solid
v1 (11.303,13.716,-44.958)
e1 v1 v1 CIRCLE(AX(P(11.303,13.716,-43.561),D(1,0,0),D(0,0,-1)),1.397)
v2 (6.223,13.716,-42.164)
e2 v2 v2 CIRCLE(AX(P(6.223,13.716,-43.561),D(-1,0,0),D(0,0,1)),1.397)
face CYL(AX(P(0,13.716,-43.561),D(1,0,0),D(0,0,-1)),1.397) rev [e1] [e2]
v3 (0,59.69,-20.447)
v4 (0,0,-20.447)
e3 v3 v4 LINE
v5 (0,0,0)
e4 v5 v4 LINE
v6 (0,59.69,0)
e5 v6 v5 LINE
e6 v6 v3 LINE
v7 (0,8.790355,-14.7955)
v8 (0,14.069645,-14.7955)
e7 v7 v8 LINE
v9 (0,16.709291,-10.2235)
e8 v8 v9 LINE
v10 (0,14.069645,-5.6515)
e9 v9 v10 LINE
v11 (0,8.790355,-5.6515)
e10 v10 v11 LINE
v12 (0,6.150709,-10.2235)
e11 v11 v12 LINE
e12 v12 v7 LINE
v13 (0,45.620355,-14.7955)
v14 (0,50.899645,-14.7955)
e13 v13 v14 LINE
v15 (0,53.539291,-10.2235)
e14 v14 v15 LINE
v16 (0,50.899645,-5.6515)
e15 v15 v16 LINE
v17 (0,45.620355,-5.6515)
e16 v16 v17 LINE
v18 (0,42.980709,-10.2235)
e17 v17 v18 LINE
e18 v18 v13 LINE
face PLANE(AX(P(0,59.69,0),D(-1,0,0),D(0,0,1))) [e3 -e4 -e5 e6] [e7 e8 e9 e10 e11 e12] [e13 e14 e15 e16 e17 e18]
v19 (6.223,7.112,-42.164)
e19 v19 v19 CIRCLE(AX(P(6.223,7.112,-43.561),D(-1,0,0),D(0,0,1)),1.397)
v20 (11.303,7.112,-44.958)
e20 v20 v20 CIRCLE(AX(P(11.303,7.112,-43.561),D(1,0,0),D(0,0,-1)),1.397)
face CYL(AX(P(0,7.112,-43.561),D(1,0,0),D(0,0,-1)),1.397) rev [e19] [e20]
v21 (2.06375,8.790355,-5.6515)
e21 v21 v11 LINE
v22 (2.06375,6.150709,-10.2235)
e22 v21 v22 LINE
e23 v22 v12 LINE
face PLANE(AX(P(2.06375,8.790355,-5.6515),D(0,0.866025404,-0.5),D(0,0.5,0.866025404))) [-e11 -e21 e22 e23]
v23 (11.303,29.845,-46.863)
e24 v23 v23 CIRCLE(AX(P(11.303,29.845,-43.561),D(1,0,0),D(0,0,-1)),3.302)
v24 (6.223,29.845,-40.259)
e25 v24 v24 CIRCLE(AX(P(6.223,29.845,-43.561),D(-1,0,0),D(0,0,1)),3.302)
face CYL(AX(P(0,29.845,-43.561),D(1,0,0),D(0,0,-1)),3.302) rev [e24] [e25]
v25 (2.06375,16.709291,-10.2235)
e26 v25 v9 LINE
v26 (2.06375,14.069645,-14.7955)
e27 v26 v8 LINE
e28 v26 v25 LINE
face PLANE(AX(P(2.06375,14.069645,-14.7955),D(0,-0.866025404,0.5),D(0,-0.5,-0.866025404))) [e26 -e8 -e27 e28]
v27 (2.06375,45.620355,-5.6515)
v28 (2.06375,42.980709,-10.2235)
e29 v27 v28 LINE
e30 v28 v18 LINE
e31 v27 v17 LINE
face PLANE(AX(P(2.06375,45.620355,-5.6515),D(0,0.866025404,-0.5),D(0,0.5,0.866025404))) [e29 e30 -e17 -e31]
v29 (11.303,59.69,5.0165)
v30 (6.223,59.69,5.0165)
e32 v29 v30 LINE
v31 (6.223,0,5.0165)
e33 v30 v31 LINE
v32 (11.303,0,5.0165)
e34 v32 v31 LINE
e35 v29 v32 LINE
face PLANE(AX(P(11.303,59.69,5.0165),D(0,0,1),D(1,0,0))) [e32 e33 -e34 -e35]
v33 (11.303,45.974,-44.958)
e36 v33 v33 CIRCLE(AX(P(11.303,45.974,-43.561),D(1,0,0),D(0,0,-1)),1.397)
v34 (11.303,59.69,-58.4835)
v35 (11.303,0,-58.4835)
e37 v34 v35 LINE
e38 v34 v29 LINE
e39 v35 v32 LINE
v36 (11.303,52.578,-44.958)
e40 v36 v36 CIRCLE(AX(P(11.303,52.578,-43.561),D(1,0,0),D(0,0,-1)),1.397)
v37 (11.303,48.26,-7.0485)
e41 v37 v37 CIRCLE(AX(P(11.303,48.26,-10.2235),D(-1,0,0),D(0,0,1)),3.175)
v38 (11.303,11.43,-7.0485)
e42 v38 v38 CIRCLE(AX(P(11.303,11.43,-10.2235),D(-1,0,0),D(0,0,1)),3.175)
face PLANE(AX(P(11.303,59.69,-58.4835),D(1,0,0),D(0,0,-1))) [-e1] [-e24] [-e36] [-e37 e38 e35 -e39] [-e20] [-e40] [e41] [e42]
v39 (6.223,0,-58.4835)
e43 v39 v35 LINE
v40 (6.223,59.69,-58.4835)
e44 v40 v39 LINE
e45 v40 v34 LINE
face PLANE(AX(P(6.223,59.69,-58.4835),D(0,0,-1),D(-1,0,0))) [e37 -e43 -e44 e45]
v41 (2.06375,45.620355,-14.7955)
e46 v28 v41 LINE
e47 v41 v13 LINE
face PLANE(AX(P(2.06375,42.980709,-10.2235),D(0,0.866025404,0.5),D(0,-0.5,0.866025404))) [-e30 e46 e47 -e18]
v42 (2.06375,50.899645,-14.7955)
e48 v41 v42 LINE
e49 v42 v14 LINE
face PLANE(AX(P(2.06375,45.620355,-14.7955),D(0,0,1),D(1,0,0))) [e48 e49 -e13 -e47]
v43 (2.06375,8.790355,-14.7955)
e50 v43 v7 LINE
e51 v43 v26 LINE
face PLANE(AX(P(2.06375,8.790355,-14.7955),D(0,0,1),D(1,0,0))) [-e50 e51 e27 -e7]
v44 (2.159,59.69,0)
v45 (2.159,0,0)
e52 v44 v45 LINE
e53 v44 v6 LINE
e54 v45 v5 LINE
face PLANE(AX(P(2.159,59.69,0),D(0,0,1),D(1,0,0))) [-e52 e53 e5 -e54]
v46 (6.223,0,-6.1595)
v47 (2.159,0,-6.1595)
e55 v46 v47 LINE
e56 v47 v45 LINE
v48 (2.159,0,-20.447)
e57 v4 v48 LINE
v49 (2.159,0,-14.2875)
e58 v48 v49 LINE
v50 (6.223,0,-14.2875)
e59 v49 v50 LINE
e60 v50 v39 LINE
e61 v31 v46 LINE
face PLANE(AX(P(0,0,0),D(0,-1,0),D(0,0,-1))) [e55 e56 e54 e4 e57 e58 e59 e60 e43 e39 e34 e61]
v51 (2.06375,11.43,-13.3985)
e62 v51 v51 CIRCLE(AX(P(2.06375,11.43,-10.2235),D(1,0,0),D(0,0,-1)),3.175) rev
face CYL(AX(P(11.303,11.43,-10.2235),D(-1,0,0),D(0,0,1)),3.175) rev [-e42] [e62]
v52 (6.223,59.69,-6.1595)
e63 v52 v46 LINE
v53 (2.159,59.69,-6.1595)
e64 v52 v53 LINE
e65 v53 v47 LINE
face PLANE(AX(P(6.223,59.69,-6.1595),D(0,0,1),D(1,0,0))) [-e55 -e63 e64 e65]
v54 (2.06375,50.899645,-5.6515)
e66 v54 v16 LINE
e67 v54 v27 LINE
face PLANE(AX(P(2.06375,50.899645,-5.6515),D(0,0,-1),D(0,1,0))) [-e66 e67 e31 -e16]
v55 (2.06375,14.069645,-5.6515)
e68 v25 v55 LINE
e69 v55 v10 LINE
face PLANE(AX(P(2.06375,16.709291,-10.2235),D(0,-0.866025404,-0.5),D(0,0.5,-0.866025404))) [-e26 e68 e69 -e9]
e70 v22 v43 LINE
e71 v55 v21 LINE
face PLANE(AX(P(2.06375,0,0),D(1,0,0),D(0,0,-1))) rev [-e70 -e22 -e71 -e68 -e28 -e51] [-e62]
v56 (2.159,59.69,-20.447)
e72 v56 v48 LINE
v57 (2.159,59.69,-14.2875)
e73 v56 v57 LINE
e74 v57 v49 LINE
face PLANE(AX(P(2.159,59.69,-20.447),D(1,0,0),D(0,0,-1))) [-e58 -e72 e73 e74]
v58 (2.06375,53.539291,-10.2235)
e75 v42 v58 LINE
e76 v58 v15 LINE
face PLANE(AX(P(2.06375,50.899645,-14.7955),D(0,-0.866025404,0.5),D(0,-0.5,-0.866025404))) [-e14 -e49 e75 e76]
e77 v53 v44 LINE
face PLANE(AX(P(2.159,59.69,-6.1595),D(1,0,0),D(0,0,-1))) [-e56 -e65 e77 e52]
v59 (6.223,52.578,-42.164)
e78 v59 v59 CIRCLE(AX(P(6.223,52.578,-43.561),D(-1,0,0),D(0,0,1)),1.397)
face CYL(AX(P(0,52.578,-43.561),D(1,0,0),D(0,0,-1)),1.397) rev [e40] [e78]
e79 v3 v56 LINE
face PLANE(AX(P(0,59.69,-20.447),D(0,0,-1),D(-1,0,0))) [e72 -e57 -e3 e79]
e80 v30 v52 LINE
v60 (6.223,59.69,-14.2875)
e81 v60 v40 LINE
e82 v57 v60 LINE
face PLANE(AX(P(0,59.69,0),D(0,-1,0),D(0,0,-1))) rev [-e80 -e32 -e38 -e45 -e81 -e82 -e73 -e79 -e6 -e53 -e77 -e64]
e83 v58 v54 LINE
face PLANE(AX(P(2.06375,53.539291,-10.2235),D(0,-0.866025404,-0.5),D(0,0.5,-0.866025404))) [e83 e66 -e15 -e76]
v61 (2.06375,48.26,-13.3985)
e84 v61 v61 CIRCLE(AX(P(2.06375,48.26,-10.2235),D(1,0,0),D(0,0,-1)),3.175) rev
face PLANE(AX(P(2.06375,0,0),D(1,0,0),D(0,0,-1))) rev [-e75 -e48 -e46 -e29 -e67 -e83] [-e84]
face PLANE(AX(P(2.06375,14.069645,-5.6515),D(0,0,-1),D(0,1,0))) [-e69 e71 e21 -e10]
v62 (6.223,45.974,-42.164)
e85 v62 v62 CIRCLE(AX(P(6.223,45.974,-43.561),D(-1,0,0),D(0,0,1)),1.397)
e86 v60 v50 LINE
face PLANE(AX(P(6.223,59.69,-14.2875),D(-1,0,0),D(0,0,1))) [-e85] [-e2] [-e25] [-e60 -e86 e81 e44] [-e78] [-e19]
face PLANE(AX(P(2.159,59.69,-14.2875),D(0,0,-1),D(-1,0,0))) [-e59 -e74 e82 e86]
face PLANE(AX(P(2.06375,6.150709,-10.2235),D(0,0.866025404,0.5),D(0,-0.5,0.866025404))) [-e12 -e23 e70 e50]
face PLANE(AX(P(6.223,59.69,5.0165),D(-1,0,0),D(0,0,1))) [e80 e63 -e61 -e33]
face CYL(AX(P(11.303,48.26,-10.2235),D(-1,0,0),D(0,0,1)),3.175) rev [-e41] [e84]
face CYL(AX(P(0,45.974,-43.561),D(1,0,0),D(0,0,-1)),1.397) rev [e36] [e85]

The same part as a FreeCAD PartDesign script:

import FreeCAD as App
import Part
import Sketcher
from FreeCAD import Vector
Q = App.Units.Quantity

doc = App.newDocument("Part")
body = doc.addObject("PartDesign::Body", "Body")

# Sketch on XZ plane
sketch1 = doc.addObject("Sketcher::SketchObject", "Sketch")
body.addObject(sketch1)
sketch1.AttachmentSupport = (doc.XZ_Plane, [""])
sketch1.MapMode = "FlatFace"
sketch1.addGeometry(Part.LineSegment(Vector(0, -20.4, 0), Vector(0, 0, 0)), False)
sketch1.addGeometry(Part.LineSegment(Vector(0, 0, 0), Vector(2.2, 0, 0)), False)
sketch1.addGeometry(Part.LineSegment(Vector(2.2, 0, 0), Vector(2.2, -6.2, 0)), False)
sketch1.addGeometry(Part.LineSegment(Vector(2.2, -6.2, 0), Vector(6.2, -6.2, 0)), False)
sketch1.addGeometry(Part.LineSegment(Vector(6.2, -6.2, 0), Vector(6.2, 5, 0)), False)
sketch1.addGeometry(Part.LineSegment(Vector(6.2, 5, 0), Vector(11.3, 5, 0)), False)
sketch1.addGeometry(Part.LineSegment(Vector(11.3, 5, 0), Vector(11.3, -58.5, 0)), False)
sketch1.addGeometry(Part.LineSegment(Vector(11.3, -58.5, 0), Vector(6.2, -58.5, 0)), False)
sketch1.addGeometry(Part.LineSegment(Vector(6.2, -58.5, 0), Vector(6.2, -14.3, 0)), False)
sketch1.addGeometry(Part.LineSegment(Vector(6.2, -14.3, 0), Vector(2.2, -14.3, 0)), False)
sketch1.addGeometry(Part.LineSegment(Vector(2.2, -14.3, 0), Vector(2.2, -20.4, 0)), False)
sketch1.addGeometry(Part.LineSegment(Vector(2.2, -20.4, 0), Vector(0, -20.4, 0)), False)
sketch1.addConstraint(Sketcher.Constraint("Coincident", 0, 2, 1, 1))
sketch1.addConstraint(Sketcher.Constraint("Coincident", 1, 2, 2, 1))
sketch1.addConstraint(Sketcher.Constraint("Coincident", 2, 2, 3, 1))
sketch1.addConstraint(Sketcher.Constraint("Coincident", 3, 2, 4, 1))
sketch1.addConstraint(Sketcher.Constraint("Coincident", 4, 2, 5, 1))
sketch1.addConstraint(Sketcher.Constraint("Coincident", 5, 2, 6, 1))
sketch1.addConstraint(Sketcher.Constraint("Coincident", 6, 2, 7, 1))
sketch1.addConstraint(Sketcher.Constraint("Coincident", 7, 2, 8, 1))
sketch1.addConstraint(Sketcher.Constraint("Coincident", 8, 2, 9, 1))
sketch1.addConstraint(Sketcher.Constraint("Coincident", 9, 2, 10, 1))
sketch1.addConstraint(Sketcher.Constraint("Coincident", 10, 2, 11, 1))
sketch1.addConstraint(Sketcher.Constraint("Coincident", 11, 2, 0, 1))
sketch1.addConstraint(Sketcher.Constraint("Vertical", 0))
sketch1.addConstraint(Sketcher.Constraint("Horizontal", 1))
sketch1.addConstraint(Sketcher.Constraint("Vertical", 2))
sketch1.addConstraint(Sketcher.Constraint("Horizontal", 3))
sketch1.addConstraint(Sketcher.Constraint("Vertical", 4))
sketch1.addConstraint(Sketcher.Constraint("Horizontal", 5))
sketch1.addConstraint(Sketcher.Constraint("Vertical", 6))
sketch1.addConstraint(Sketcher.Constraint("Horizontal", 7))
sketch1.addConstraint(Sketcher.Constraint("Vertical", 8))
sketch1.addConstraint(Sketcher.Constraint("Horizontal", 9))
sketch1.addConstraint(Sketcher.Constraint("Vertical", 10))
sketch1.addConstraint(Sketcher.Constraint("Horizontal", 11))
sketch1.addConstraint(Sketcher.Constraint("Coincident", 0, 2, -1, 1))
sketch1.addConstraint(Sketcher.Constraint("Vertical", 4, 2, 7, 2))
sketch1.addConstraint(Sketcher.Constraint("Vertical", 2, 2, 9, 2))
sketch1.addConstraint(Sketcher.Constraint("Equal", 2, 10))
sketch1.addConstraint(Sketcher.Constraint("DistanceX", 5, 1, 5, 2, Q("0.2 in")))
sketch1.addConstraint(Sketcher.Constraint("DistanceY", 6, 2, 6, 1, Q("2.5 in")))
sketch1.addConstraint(Sketcher.Constraint("DistanceX", 3, 1, 3, 2, Q("0.16 in")))
sketch1.addConstraint(Sketcher.Constraint("DistanceY", 4, 1, 4, 2, Q("0.44 in")))
sketch1.addConstraint(Sketcher.Constraint("DistanceY", 8, 1, 8, 2, Q("1.74 in")))
sketch1.addConstraint(Sketcher.Constraint("DistanceX", 1, 1, 1, 2, Q("0.085 in")))
sketch1.addConstraint(Sketcher.Constraint("DistanceY", 0, 1, 0, 2, Q("0.805 in")))
pad1 = doc.addObject("PartDesign::Pad", "Pad")
body.addObject(pad1)
pad1.Profile = sketch1
pad1.Length = Q("2.35 in")
pad1.Reversed = True

# Sketch on YZ plane
sketch2 = doc.addObject("Sketcher::SketchObject", "Sketch001")
body.addObject(sketch2)
sketch2.AttachmentSupport = (doc.YZ_Plane, [""])
sketch2.MapMode = "FlatFace"
sketch2.AttachmentOffset = App.Placement(Vector(0, 0, 0.445 * 25.4), App.Rotation())
sketch2.addGeometry(Part.Circle(Vector(29.8, -43.6, 0), Vector(0, 0, 1), 3.3), False)
sketch2.addGeometry(Part.Circle(Vector(13.7, -43.6, 0), Vector(0, 0, 1), 1.4), False)
sketch2.addGeometry(Part.Circle(Vector(7.1, -43.6, 0), Vector(0, 0, 1), 1.4), False)
sketch2.addGeometry(Part.Circle(Vector(46, -43.6, 0), Vector(0, 0, 1), 1.4), False)
sketch2.addGeometry(Part.Circle(Vector(52.6, -43.6, 0), Vector(0, 0, 1), 1.4), False)
sketch2.addConstraint(Sketcher.Constraint("Equal", 1, 2))
sketch2.addConstraint(Sketcher.Constraint("Equal", 2, 3))
sketch2.addConstraint(Sketcher.Constraint("Equal", 3, 4))
sketch2.addConstraint(Sketcher.Constraint("Horizontal", 0, 3, 1, 3))
sketch2.addConstraint(Sketcher.Constraint("Horizontal", 1, 3, 2, 3))
sketch2.addConstraint(Sketcher.Constraint("Horizontal", 2, 3, 3, 3))
sketch2.addConstraint(Sketcher.Constraint("Horizontal", 3, 3, 4, 3))
sketch2.addConstraint(Sketcher.Constraint("Diameter", 0, Q("0.26 in")))
sketch2.addConstraint(Sketcher.Constraint("Diameter", 1, Q("0.11 in")))
sketch2.addConstraint(Sketcher.Constraint("DistanceX", -1, 1, 1, 3, Q("0.54 in")))
sketch2.addConstraint(Sketcher.Constraint("DistanceX", -1, 1, 2, 3, Q("0.28 in")))
sketch2.addConstraint(Sketcher.Constraint("DistanceX", -1, 1, 3, 3, Q("1.81 in")))
sketch2.addConstraint(Sketcher.Constraint("DistanceX", -1, 1, 4, 3, Q("2.07 in")))
sketch2.addConstraint(Sketcher.Constraint("DistanceX", -1, 1, 0, 3, Q("1.175 in")))
sketch2.addConstraint(Sketcher.Constraint("DistanceY", 0, 3, -1, 1, Q("1.715 in")))
pocket1 = doc.addObject("PartDesign::Pocket", "Pocket")
body.addObject(pocket1)
pocket1.Profile = sketch2
pocket1.Type = "ThroughAll"

# Sketch on YZ plane
sketch3 = doc.addObject("Sketcher::SketchObject", "Sketch002")
body.addObject(sketch3)
sketch3.AttachmentSupport = (doc.YZ_Plane, [""])
sketch3.MapMode = "FlatFace"
sketch3.addGeometry(Part.Circle(Vector(48.3, -10.2, 0), Vector(0, 0, 1), 3.2), False)
sketch3.addGeometry(Part.Circle(Vector(11.4, -10.2, 0), Vector(0, 0, 1), 3.2), False)
sketch3.addConstraint(Sketcher.Constraint("Equal", 0, 1))
sketch3.addConstraint(Sketcher.Constraint("Horizontal", 0, 3, 1, 3))
sketch3.addConstraint(Sketcher.Constraint("Diameter", 0, Q("0.25 in")))
sketch3.addConstraint(Sketcher.Constraint("DistanceX", -1, 1, 0, 3, Q("1.9 in")))
sketch3.addConstraint(Sketcher.Constraint("DistanceX", -1, 1, 1, 3, Q("0.45 in")))
sketch3.addConstraint(Sketcher.Constraint("DistanceY", 0, 3, -1, 1, Q("0.4025 in")))
pocket2 = doc.addObject("PartDesign::Pocket", "Pocket001")
body.addObject(pocket2)
pocket2.Profile = sketch3
pocket2.Type = "ThroughAll"
pocket2.Reversed = True

# Sketch on YZ plane
sketch4 = doc.addObject("Sketcher::SketchObject", "Sketch003")
body.addObject(sketch4)
sketch4.AttachmentSupport = (doc.YZ_Plane, [""])
sketch4.MapMode = "FlatFace"
sketch4.addGeometry(Part.LineSegment(Vector(14, -15, 0), Vector(9, -15, 0)), False)
sketch4.addGeometry(Part.LineSegment(Vector(9, -15, 0), Vector(6, -10, 0)), False)
sketch4.addGeometry(Part.LineSegment(Vector(6, -10, 0), Vector(9, -6, 0)), False)
sketch4.addGeometry(Part.LineSegment(Vector(9, -6, 0), Vector(14, -6, 0)), False)
sketch4.addGeometry(Part.LineSegment(Vector(14, -6, 0), Vector(17, -10, 0)), False)
sketch4.addGeometry(Part.LineSegment(Vector(17, -10, 0), Vector(14, -15, 0)), False)
sketch4.addGeometry(Part.LineSegment(Vector(51, -15, 0), Vector(46, -15, 0)), False)
sketch4.addGeometry(Part.LineSegment(Vector(46, -15, 0), Vector(43, -10, 0)), False)
sketch4.addGeometry(Part.LineSegment(Vector(43, -10, 0), Vector(46, -6, 0)), False)
sketch4.addGeometry(Part.LineSegment(Vector(46, -6, 0), Vector(51, -6, 0)), False)
sketch4.addGeometry(Part.LineSegment(Vector(51, -6, 0), Vector(54, -10, 0)), False)
sketch4.addGeometry(Part.LineSegment(Vector(54, -10, 0), Vector(51, -15, 0)), False)
sketch4.addConstraint(Sketcher.Constraint("Coincident", 0, 2, 1, 1))
sketch4.addConstraint(Sketcher.Constraint("Coincident", 1, 2, 2, 1))
sketch4.addConstraint(Sketcher.Constraint("Coincident", 2, 2, 3, 1))
sketch4.addConstraint(Sketcher.Constraint("Coincident", 3, 2, 4, 1))
sketch4.addConstraint(Sketcher.Constraint("Coincident", 4, 2, 5, 1))
sketch4.addConstraint(Sketcher.Constraint("Coincident", 5, 2, 0, 1))
sketch4.addConstraint(Sketcher.Constraint("Coincident", 6, 2, 7, 1))
sketch4.addConstraint(Sketcher.Constraint("Coincident", 7, 2, 8, 1))
sketch4.addConstraint(Sketcher.Constraint("Coincident", 8, 2, 9, 1))
sketch4.addConstraint(Sketcher.Constraint("Coincident", 9, 2, 10, 1))
sketch4.addConstraint(Sketcher.Constraint("Coincident", 10, 2, 11, 1))
sketch4.addConstraint(Sketcher.Constraint("Coincident", 11, 2, 6, 1))
sketch4.addConstraint(Sketcher.Constraint("Horizontal", 0))
sketch4.addConstraint(Sketcher.Constraint("Horizontal", 3))
sketch4.addConstraint(Sketcher.Constraint("Horizontal", 6))
sketch4.addConstraint(Sketcher.Constraint("Horizontal", 9))
sketch4.addConstraint(Sketcher.Constraint("Parallel", 1, 4))
sketch4.addConstraint(Sketcher.Constraint("Parallel", 2, 5))
sketch4.addConstraint(Sketcher.Constraint("Parallel", 4, 7))
sketch4.addConstraint(Sketcher.Constraint("Parallel", 5, 8))
sketch4.addConstraint(Sketcher.Constraint("Parallel", 7, 10))
sketch4.addConstraint(Sketcher.Constraint("Parallel", 8, 11))
sketch4.addConstraint(Sketcher.Constraint("Horizontal", 1, 2, 4, 2))
sketch4.addConstraint(Sketcher.Constraint("Horizontal", 5, 2, 6, 2))
sketch4.addConstraint(Sketcher.Constraint("Horizontal", 4, 2, 7, 2))
sketch4.addConstraint(Sketcher.Constraint("Horizontal", 3, 2, 8, 2))
sketch4.addConstraint(Sketcher.Constraint("Horizontal", 7, 2, 10, 2))
sketch4.addConstraint(Sketcher.Constraint("Vertical", 0, 2, 2, 2))
sketch4.addConstraint(Sketcher.Constraint("Vertical", 3, 2, 5, 2))
sketch4.addConstraint(Sketcher.Constraint("Equal", 3, 6))
sketch4.addConstraint(Sketcher.Constraint("Angle", 1, Q("120 deg")))
sketch4.addConstraint(Sketcher.Constraint("DistanceY", 0, 2, 1, 2, Q("0.18 in")))
sketch4.addConstraint(Sketcher.Constraint("DistanceX", 0, 2, 6, 2, Q("1.45 in")))
sketch4.addConstraint(Sketcher.Constraint("DistanceY", 0, 2, -1, 1, Q("0.5825 in")))
sketch4.addConstraint(Sketcher.Constraint("DistanceX", 0, 2, 0, 1, 5.279291))
sketch4.addConstraint(Sketcher.Constraint("DistanceX", -1, 1, 1, 2, 6.150709))
pocket3 = doc.addObject("PartDesign::Pocket", "Pocket002")
body.addObject(pocket3)
pocket3.Profile = sketch4
pocket3.Length = 2.06375
pocket3.Reversed = True

doc.recompute()
